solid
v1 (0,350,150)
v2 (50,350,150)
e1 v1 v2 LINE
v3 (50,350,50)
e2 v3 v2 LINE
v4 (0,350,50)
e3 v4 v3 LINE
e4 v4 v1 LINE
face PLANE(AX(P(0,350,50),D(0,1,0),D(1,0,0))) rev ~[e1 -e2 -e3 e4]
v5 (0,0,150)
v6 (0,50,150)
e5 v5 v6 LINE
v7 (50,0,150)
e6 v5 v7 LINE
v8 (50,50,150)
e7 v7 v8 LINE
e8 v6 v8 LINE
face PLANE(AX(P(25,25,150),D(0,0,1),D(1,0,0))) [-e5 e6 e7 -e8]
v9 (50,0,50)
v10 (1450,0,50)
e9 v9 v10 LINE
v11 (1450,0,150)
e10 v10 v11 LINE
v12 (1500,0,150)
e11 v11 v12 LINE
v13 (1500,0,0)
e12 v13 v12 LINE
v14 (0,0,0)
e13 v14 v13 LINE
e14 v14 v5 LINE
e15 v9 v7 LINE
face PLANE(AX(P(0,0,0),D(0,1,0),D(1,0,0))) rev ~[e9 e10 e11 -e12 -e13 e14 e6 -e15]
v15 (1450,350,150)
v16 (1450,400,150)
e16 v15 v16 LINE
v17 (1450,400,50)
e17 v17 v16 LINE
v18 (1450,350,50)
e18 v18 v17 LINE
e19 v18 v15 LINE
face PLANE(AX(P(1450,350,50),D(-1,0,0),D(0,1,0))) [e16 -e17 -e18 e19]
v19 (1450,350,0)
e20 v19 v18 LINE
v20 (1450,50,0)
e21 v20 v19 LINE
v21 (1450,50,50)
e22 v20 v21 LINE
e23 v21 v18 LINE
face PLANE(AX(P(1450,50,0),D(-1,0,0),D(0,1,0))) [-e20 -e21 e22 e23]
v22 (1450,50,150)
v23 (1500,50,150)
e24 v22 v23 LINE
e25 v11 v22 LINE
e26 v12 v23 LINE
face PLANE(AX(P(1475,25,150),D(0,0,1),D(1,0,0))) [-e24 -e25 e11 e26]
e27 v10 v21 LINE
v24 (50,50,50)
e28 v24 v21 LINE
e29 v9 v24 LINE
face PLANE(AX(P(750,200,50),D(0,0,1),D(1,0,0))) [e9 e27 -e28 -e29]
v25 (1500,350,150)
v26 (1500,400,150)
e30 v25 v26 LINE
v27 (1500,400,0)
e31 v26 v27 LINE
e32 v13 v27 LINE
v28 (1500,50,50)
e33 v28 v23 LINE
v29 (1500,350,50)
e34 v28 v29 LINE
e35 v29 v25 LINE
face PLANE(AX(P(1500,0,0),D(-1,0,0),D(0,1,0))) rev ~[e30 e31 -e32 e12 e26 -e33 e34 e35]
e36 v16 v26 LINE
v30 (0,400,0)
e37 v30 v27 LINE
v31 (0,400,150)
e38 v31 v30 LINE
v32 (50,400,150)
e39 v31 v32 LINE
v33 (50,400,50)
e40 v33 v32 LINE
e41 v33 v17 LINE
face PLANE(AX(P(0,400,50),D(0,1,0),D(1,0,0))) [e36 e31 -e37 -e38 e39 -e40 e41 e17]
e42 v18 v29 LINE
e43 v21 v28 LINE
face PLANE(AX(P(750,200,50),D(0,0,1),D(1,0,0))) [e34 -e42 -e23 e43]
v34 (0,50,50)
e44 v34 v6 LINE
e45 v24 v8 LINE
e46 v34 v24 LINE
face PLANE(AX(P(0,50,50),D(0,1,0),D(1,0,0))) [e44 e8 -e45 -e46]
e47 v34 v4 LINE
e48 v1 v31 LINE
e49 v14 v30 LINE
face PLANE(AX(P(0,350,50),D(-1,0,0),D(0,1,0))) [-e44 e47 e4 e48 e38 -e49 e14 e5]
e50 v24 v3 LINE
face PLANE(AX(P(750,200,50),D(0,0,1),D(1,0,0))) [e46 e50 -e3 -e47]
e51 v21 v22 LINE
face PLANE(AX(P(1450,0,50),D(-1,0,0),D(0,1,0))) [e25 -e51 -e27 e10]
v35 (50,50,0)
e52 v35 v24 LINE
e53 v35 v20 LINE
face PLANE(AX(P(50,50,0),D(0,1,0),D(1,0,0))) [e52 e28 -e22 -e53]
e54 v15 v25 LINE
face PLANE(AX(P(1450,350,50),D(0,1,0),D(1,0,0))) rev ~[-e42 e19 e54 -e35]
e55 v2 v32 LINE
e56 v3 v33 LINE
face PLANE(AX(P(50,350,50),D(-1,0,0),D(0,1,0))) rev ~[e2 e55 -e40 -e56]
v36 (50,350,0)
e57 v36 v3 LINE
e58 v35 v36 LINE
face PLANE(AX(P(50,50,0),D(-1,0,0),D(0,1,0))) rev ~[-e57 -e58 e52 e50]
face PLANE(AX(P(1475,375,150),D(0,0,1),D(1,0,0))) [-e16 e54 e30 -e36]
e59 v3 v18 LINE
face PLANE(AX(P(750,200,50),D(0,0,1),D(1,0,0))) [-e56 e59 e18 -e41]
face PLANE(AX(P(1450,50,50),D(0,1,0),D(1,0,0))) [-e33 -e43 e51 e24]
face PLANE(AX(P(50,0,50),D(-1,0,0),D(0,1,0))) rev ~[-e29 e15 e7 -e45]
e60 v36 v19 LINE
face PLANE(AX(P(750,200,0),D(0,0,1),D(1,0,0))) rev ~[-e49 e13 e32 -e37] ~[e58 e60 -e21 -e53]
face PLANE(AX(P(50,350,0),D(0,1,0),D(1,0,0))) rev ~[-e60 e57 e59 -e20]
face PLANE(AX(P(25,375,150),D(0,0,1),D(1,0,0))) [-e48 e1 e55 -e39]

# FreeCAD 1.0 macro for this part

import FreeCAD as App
import Part
import Sketcher
from FreeCAD import Vector
Q = App.Units.Quantity

doc = App.newDocument("Part")
body = doc.addObject("PartDesign::Body", "Body")

# Sketch on XY plane
sketch1 = body.newObject("Sketcher::SketchObject", "Sketch")
sketch1.AttachmentSupport = (doc.getObject("XY_Plane"), [""])
sketch1.MapMode = "FlatFace"
sketch1.addGeometry([
    Part.LineSegment(Vector(0, 400, 0), Vector(0, 0, 0)),  # 0
    Part.LineSegment(Vector(0, 0, 0), Vector(1500, 0, 0)),  # 1
    Part.LineSegment(Vector(1500, 0, 0), Vector(1500, 400, 0)),  # 2
    Part.LineSegment(Vector(1500, 400, 0), Vector(0, 400, 0)),  # 3
    Part.LineSegment(Vector(1450, 50, 0), Vector(50, 50, 0)),  # 4
    Part.LineSegment(Vector(50, 50, 0), Vector(50, 350, 0)),  # 5
    Part.LineSegment(Vector(50, 350, 0), Vector(1450, 350, 0)),  # 6
    Part.LineSegment(Vector(1450, 350, 0), Vector(1450, 50, 0)),  # 7
], False)
sketch1.addConstraint([
    Sketcher.Constraint("Coincident", 0, 2, 1, 1),
    Sketcher.Constraint("Coincident", 1, 2, 2, 1),
    Sketcher.Constraint("Coincident", 2, 2, 3, 1),
    Sketcher.Constraint("Coincident", 3, 2, 0, 1),
    Sketcher.Constraint("Coincident", 4, 2, 5, 1),
    Sketcher.Constraint("Coincident", 5, 2, 6, 1),
    Sketcher.Constraint("Coincident", 6, 2, 7, 1),
    Sketcher.Constraint("Coincident", 7, 2, 4, 1),
    Sketcher.Constraint("Vertical", 0),
    Sketcher.Constraint("Horizontal", 1),
    Sketcher.Constraint("Vertical", 2),
    Sketcher.Constraint("Horizontal", 3),
    Sketcher.Constraint("Horizontal", 4),
    Sketcher.Constraint("Vertical", 5),
    Sketcher.Constraint("Horizontal", 6),
    Sketcher.Constraint("Vertical", 7),
    Sketcher.Constraint("Coincident", 0, 2, -1, 1),
    Sketcher.Constraint("DistanceX", 1, 1, 1, 2, Q("1500 mm")),
    Sketcher.Constraint("DistanceX", 4, 2, 4, 1, Q("1400 mm")),
    Sketcher.Constraint("DistanceY", 0, 2, 0, 1, Q("400 mm")),
    Sketcher.Constraint("DistanceY", 5, 1, 5, 2, Q("300 mm")),
    Sketcher.Constraint("DistanceX", -1, 1, 4, 2, Q("50 mm")),
    Sketcher.Constraint("DistanceY", -1, 1, 4, 2, Q("50 mm")),
])
pad1 = body.newObject("PartDesign::Pad", "Pad")
pad1.Profile = sketch1
pad1.Length = 50

# Sketch on XY plane
sketch2 = body.newObject("Sketcher::SketchObject", "Sketch001")
sketch2.AttachmentSupport = (doc.getObject("XY_Plane"), [""])
sketch2.MapMode = "FlatFace"
sketch2.AttachmentOffset = App.Placement(Vector(0, 0, 50), App.Rotation())
sketch2.addGeometry([
    Part.LineSegment(Vector(0, 400, 0), Vector(0, 350, 0)),  # 0
    Part.LineSegment(Vector(0, 350, 0), Vector(50, 350, 0)),  # 1
    Part.LineSegment(Vector(50, 350, 0), Vector(50, 400, 0)),  # 2
    Part.LineSegment(Vector(50, 400, 0), Vector(0, 400, 0)),  # 3
    Part.LineSegment(Vector(0, 50, 0), Vector(0, 0, 0)),  # 4
    Part.LineSegment(Vector(0, 0, 0), Vector(50, 0, 0)),  # 5
    Part.LineSegment(Vector(50, 0, 0), Vector(50, 50, 0)),  # 6
    Part.LineSegment(Vector(50, 50, 0), Vector(0, 50, 0)),  # 7
    Part.LineSegment(Vector(1450, 400, 0), Vector(1450, 350, 0)),  # 8
    Part.LineSegment(Vector(1450, 350, 0), Vector(1500, 350, 0)),  # 9
    Part.LineSegment(Vector(1500, 350, 0), Vector(1500, 400, 0)),  # 10
    Part.LineSegment(Vector(1500, 400, 0), Vector(1450, 400, 0)),  # 11
    Part.LineSegment(Vector(1450, 50, 0), Vector(1450, 0, 0)),  # 12
    Part.LineSegment(Vector(1450, 0, 0), Vector(1500, 0, 0)),  # 13
    Part.LineSegment(Vector(1500, 0, 0), Vector(1500, 50, 0)),  # 14
    Part.LineSegment(Vector(1500, 50, 0), Vector(1450, 50, 0)),  # 15
], False)
sketch2.addConstraint([
    Sketcher.Constraint("Coincident", 0, 2, 1, 1),
    Sketcher.Constraint("Coincident", 1, 2, 2, 1),
    Sketcher.Constraint("Coincident", 2, 2, 3, 1),
    Sketcher.Constraint("Coincident", 3, 2, 0, 1),
    Sketcher.Constraint("Coincident", 4, 2, 5, 1),
    Sketcher.Constraint("Coincident", 5, 2, 6, 1),
    Sketcher.Constraint("Coincident", 6, 2, 7, 1),
    Sketcher.Constraint("Coincident", 7, 2, 4, 1),
    Sketcher.Constraint("Coincident", 8, 2, 9, 1),
    Sketcher.Constraint("Coincident", 9, 2, 10, 1),
    Sketcher.Constraint("Coincident", 10, 2, 11, 1),
    Sketcher.Constraint("Coincident", 11, 2, 8, 1),
    Sketcher.Constraint("Coincident", 12, 2, 13, 1),
    Sketcher.Constraint("Coincident", 13, 2, 14, 1),
    Sketcher.Constraint("Coincident", 14, 2, 15, 1),
    Sketcher.Constraint("Coincident", 15, 2, 12, 1),
    Sketcher.Constraint("Vertical", 0),
    Sketcher.Constraint("Horizontal", 1),
    Sketcher.Constraint("Vertical", 2),
    Sketcher.Constraint("Horizontal", 3),
    Sketcher.Constraint("Vertical", 4),
    Sketcher.Constraint("Horizontal", 5),
    Sketcher.Constraint("Vertical", 6),
    Sketcher.Constraint("Horizontal", 7),
    Sketcher.Constraint("Vertical", 8),
    Sketcher.Constraint("Horizontal", 9),
    Sketcher.Constraint("Vertical", 10),
    Sketcher.Constraint("Horizontal", 11),
    Sketcher.Constraint("Vertical", 12),
    Sketcher.Constraint("Horizontal", 13),
    Sketcher.Constraint("Vertical", 14),
    Sketcher.Constraint("Horizontal", 15),
    Sketcher.Constraint("Coincident", 4, 2, -1, 1),
    Sketcher.Constraint("PointOnObject", 0, 2, -2),
    Sketcher.Constraint("PointOnObject", 12, 2, -1),
    Sketcher.Constraint("Horizontal", 1, 2, 8, 2),
    Sketcher.Constraint("Horizontal", 3, 2, 10, 2),
    Sketcher.Constraint("Horizontal", 7, 2, 14, 2),
    Sketcher.Constraint("Vertical", 2, 2, 5, 2),
    Sketcher.Constraint("Vertical", 11, 2, 12, 2),
    Sketcher.Constraint("Vertical", 10, 2, 13, 2),
    Sketcher.Constraint("Equal", 7, 9),
    Sketcher.Constraint("Equal", 15, 0),
    Sketcher.Constraint("Equal", 2, 4),
    Sketcher.Constraint("DistanceX", 1, 1, 1, 2, Q("50 mm")),
    Sketcher.Constraint("DistanceY", -1, 1, 0, 2, Q("350 mm")),
    Sketcher.Constraint("DistanceX", -1, 1, 8, 2, Q("1450 mm")),
])
pad2 = body.newObject("PartDesign::Pad", "Pad001")
pad2.Profile = sketch2
pad2.Length = 100

doc.recompute()
